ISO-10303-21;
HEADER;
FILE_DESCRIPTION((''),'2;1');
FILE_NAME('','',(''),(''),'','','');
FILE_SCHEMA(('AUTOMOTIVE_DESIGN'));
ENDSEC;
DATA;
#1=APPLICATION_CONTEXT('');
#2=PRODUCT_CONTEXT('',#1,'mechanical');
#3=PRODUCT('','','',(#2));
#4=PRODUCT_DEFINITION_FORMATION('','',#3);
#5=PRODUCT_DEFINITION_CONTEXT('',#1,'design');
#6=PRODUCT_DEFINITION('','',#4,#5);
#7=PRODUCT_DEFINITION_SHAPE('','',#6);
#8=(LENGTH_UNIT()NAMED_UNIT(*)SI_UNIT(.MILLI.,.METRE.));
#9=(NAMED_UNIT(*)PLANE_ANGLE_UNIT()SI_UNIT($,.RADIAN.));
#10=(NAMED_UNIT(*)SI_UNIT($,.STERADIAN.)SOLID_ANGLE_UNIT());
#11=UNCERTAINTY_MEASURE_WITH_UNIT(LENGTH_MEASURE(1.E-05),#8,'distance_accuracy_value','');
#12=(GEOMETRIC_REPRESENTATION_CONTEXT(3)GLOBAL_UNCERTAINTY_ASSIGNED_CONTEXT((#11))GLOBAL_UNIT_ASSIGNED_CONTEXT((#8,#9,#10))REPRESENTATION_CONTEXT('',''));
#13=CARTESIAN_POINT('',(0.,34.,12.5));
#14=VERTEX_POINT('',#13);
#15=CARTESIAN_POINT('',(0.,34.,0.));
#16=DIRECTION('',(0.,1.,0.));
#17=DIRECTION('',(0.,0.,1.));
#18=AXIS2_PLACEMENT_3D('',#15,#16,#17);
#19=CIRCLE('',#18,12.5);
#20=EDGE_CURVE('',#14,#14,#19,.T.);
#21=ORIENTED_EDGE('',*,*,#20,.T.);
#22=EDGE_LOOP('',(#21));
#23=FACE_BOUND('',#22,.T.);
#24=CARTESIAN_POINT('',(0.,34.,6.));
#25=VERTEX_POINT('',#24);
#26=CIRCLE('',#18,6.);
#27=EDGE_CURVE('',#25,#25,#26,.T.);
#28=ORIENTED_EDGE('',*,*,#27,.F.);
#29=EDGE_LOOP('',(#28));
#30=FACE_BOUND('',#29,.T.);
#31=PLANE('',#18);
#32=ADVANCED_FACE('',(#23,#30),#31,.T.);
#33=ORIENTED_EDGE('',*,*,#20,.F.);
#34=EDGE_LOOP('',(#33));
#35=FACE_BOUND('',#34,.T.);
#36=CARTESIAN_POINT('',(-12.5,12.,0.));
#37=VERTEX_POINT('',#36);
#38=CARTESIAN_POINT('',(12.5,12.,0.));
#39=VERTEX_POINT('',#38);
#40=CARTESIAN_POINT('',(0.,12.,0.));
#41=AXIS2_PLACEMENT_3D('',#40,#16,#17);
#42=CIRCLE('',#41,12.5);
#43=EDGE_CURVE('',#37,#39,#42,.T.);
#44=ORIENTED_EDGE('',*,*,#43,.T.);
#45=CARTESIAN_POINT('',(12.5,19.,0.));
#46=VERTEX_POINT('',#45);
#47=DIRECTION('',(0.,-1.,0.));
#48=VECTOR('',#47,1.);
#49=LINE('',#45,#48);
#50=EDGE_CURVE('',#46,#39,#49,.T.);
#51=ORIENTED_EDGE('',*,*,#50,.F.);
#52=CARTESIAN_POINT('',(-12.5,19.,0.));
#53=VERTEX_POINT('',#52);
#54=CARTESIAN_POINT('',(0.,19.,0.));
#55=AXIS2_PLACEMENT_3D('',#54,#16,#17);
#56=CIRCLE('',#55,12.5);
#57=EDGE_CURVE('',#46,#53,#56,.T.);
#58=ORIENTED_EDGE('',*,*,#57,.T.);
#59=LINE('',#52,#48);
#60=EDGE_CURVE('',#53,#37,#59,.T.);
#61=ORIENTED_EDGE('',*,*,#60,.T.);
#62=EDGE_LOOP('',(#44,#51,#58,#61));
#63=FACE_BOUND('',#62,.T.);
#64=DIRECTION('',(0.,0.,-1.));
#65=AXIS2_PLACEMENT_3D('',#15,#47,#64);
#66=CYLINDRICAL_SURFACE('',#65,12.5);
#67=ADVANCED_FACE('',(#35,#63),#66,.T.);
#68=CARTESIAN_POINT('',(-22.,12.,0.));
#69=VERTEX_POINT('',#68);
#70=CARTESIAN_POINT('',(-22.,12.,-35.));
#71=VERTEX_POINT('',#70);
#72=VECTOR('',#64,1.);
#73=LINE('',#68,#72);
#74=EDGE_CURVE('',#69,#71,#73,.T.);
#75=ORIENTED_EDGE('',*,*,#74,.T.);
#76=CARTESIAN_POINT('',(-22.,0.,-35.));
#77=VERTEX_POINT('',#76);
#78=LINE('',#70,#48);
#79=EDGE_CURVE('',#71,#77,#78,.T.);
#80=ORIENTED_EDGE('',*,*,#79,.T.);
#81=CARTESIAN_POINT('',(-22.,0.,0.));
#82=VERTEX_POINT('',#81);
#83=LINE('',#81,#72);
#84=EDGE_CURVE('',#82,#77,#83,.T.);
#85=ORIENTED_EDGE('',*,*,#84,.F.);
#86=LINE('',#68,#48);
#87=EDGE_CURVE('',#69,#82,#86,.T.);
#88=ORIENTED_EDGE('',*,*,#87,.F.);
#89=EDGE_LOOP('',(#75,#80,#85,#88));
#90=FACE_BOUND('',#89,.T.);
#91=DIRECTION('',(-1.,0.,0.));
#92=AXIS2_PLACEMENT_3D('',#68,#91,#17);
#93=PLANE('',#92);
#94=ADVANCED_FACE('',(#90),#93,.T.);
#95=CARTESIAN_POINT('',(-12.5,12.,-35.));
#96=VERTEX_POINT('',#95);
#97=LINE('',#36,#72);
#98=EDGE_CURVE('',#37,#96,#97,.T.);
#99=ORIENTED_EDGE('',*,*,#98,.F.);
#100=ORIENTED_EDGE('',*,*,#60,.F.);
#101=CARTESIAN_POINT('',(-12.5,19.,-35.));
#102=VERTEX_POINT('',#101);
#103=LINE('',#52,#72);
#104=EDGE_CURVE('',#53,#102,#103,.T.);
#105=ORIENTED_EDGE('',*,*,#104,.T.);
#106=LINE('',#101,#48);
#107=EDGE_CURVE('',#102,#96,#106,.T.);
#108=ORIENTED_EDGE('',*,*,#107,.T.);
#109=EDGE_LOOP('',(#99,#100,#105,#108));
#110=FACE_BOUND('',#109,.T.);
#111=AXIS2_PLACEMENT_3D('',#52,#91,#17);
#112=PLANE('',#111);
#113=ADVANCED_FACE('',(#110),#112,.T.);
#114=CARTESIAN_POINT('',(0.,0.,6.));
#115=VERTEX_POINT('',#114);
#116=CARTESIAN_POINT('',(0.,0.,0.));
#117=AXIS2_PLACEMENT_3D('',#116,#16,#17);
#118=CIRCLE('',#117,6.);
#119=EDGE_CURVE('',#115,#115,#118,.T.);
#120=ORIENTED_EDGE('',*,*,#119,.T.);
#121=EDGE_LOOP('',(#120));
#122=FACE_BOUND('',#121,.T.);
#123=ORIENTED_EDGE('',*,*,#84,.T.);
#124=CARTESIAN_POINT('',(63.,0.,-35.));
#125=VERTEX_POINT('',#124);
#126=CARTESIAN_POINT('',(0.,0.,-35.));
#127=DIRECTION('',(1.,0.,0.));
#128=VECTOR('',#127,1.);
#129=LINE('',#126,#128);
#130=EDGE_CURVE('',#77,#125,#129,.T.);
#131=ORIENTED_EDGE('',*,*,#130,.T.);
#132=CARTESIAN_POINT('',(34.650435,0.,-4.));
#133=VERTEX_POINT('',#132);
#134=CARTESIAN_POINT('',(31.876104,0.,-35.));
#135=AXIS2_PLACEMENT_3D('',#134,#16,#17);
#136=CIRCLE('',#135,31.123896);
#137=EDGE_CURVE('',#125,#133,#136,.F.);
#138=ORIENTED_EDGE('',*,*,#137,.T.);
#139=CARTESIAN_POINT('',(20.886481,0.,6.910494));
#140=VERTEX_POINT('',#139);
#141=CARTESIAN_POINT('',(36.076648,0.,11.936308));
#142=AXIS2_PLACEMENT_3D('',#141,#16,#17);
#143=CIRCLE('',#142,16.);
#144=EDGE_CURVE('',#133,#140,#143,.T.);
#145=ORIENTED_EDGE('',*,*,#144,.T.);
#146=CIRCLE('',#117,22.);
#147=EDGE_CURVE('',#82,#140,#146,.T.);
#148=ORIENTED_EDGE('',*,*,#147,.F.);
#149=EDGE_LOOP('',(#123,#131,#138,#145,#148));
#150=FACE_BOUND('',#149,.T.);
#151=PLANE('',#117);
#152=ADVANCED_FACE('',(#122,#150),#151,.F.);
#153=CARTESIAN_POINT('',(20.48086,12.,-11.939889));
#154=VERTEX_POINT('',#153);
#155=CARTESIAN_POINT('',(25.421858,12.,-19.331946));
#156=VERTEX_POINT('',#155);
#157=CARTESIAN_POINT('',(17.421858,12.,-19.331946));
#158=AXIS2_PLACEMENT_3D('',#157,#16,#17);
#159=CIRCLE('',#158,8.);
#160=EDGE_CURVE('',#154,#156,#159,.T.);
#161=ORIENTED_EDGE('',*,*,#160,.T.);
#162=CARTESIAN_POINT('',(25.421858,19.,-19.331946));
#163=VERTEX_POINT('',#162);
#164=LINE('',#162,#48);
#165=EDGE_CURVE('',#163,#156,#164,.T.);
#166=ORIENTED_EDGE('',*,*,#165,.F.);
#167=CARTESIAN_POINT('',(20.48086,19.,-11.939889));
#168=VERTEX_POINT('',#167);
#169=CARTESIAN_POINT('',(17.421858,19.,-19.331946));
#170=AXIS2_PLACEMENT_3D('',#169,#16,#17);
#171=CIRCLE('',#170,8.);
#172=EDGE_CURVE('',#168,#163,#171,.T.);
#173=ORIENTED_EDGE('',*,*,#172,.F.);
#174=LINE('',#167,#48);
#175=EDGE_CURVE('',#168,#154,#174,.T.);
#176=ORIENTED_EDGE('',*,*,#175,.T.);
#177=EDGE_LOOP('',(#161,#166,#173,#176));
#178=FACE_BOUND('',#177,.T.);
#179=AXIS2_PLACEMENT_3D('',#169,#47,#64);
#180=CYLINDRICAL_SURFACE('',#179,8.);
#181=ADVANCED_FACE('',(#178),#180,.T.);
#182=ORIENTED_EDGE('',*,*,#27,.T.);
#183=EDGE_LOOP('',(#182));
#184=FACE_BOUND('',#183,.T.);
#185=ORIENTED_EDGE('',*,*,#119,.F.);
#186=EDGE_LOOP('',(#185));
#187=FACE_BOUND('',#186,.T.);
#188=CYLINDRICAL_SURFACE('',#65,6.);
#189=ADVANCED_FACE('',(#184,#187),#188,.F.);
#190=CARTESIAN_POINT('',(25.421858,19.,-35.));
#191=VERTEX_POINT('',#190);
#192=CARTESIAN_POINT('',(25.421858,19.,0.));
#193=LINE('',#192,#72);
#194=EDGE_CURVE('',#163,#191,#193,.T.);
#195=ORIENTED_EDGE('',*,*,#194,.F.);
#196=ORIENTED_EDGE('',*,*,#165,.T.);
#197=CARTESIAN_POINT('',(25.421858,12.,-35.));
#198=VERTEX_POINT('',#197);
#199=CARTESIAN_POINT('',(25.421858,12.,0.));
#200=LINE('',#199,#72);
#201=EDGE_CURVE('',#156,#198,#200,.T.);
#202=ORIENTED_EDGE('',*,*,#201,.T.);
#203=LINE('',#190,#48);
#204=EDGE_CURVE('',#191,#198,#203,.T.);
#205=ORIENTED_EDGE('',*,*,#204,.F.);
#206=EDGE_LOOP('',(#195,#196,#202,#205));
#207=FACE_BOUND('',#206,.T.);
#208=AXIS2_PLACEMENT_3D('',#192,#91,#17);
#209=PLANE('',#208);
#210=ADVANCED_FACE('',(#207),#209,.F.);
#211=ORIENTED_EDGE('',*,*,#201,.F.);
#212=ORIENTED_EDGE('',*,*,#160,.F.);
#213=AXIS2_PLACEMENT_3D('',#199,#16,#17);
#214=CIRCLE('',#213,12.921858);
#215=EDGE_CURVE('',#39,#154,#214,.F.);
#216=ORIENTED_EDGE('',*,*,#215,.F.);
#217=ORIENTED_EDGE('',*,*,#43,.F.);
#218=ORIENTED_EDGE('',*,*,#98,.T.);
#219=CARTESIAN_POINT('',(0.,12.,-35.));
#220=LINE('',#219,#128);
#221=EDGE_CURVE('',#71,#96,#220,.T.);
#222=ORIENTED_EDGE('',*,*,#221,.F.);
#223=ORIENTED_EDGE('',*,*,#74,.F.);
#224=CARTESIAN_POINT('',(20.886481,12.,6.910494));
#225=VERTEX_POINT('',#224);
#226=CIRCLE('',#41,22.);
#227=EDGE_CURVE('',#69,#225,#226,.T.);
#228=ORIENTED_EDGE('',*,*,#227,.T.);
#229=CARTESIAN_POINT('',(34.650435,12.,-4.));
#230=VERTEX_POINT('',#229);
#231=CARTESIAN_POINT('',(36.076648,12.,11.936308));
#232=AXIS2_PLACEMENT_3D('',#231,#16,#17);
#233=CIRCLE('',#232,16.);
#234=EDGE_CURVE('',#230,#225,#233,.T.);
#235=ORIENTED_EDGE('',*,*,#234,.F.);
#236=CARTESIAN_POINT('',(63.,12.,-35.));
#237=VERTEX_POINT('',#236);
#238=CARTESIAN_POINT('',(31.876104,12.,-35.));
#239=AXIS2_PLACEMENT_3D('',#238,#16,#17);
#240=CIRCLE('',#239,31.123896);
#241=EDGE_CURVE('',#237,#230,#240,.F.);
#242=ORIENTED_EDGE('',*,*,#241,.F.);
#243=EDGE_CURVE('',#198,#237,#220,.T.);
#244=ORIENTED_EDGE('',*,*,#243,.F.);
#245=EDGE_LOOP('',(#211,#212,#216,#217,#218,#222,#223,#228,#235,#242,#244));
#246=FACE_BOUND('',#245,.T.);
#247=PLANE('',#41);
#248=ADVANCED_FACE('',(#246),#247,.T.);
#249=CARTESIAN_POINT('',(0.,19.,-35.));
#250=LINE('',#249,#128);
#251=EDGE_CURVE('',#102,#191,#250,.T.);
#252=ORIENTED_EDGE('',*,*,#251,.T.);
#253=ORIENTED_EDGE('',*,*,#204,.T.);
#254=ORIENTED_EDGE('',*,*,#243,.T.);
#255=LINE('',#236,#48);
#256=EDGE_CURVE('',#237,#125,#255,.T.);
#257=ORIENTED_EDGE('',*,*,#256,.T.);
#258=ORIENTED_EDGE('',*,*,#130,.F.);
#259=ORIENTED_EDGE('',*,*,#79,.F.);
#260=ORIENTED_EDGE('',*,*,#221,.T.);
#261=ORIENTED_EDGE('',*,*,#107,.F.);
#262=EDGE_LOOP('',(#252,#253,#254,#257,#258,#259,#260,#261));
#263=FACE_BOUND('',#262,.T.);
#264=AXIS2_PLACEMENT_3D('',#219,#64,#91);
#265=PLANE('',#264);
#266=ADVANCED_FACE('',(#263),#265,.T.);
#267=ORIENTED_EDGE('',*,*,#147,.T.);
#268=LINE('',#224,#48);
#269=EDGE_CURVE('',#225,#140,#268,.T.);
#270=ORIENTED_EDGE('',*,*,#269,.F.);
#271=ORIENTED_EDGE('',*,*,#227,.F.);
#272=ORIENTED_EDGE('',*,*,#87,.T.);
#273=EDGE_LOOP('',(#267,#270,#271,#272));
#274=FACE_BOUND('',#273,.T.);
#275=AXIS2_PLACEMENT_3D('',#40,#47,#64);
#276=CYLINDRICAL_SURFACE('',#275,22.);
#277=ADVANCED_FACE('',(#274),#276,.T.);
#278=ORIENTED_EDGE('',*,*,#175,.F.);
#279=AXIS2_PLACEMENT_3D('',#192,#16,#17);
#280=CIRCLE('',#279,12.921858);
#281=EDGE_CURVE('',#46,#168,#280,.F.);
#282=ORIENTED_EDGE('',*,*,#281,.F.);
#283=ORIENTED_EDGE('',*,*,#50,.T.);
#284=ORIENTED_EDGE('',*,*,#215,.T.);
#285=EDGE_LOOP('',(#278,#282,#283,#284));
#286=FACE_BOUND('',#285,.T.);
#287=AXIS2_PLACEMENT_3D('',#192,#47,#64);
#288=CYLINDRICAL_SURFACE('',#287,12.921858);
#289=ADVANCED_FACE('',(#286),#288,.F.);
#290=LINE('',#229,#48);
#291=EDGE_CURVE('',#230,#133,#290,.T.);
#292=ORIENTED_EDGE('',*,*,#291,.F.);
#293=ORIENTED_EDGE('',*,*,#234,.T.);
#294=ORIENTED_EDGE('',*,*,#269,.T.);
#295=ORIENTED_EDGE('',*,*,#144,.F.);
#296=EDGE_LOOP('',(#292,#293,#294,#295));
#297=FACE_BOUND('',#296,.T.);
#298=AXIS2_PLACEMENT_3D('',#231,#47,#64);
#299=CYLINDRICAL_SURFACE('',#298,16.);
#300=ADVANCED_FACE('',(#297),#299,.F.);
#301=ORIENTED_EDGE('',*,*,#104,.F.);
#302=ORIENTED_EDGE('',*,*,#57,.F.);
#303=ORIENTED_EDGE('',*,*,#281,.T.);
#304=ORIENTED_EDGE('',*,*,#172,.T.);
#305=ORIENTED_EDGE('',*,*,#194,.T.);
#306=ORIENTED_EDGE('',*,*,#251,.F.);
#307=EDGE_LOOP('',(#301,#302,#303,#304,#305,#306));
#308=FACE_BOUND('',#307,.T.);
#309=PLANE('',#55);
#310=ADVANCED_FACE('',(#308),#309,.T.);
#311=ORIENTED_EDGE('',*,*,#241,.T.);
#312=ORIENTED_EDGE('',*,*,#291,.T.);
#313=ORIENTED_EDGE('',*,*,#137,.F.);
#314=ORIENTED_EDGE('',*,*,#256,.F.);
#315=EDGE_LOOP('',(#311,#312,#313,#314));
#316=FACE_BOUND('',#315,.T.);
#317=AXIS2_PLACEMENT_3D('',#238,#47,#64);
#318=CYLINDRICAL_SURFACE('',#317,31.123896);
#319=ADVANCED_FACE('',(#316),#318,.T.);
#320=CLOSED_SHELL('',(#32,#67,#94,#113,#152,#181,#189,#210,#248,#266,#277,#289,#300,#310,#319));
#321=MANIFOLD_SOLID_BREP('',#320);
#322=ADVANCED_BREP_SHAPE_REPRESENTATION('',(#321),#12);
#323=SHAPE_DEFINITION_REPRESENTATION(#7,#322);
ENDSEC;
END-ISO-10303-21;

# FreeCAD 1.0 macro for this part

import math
import FreeCAD as App
import Part
import Sketcher
from FreeCAD import Vector

doc = App.newDocument("Part")
body = doc.addObject("PartDesign::Body", "Body")

# Sketch on XZ plane
sketch1 = body.newObject("Sketcher::SketchObject", "Sketch")
sketch1.AttachmentSupport = (doc.getObject("XZ_Plane"), [""])
sketch1.MapMode = "FlatFace"
sketch1.addGeometry([
    Part.LineSegment(Vector(-22, -35, 0), Vector(-22, 0, 0)),  # 0
    Part.ArcOfCircle(Part.Circle(Vector(0, 0, 0), Vector(0, 0, 1), 22), math.radians(18), math.radians(180)),  # 1
    Part.ArcOfCircle(Part.Circle(Vector(36, 12, 0), Vector(0, 0, 1), 16), math.radians(-162), math.radians(-95)),  # 2
    Part.ArcOfCircle(Part.Circle(Vector(32, -35, 0), Vector(0, 0, 1), 31), math.radians(0), math.radians(85)),  # 3
    Part.LineSegment(Vector(63, -35, 0), Vector(25, -35, 0)),  # 4
    Part.LineSegment(Vector(25, -35, 0), Vector(25, -19, 0)),  # 5
    Part.ArcOfCircle(Part.Circle(Vector(17, -19, 0), Vector(0, 0, 1), 8), math.radians(0), math.radians(68)),  # 6
    Part.ArcOfCircle(Part.Circle(Vector(25, 0, 0), Vector(0, 0, 1), 13), math.radians(180), math.radians(248)),  # 7
    Part.ArcOfCircle(Part.Circle(Vector(0, 0, 0), Vector(0, 0, 1), 12), math.radians(0), math.radians(180)),  # 8
    Part.LineSegment(Vector(-12, 0, 0), Vector(-12, -35, 0)),  # 9
    Part.LineSegment(Vector(-12, -35, 0), Vector(-22, -35, 0)),  # 10
], False)
sketch1.addConstraint([
    Sketcher.Constraint("Tangent", 0, 2, 1, 2),
    Sketcher.Constraint("Tangent", 1, 1, 2, 1),
    Sketcher.Constraint("Tangent", 2, 2, 3, 2),
    Sketcher.Constraint("Coincident", 3, 1, 4, 1),
    Sketcher.Constraint("Coincident", 4, 2, 5, 1),
    Sketcher.Constraint("Tangent", 5, 2, 6, 1),
    Sketcher.Constraint("Tangent", 6, 2, 7, 2),
    Sketcher.Constraint("Tangent", 7, 1, 8, 1),
    Sketcher.Constraint("Tangent", 8, 2, 9, 1),
    Sketcher.Constraint("Coincident", 9, 2, 10, 1),
    Sketcher.Constraint("Coincident", 10, 2, 0, 1),
    Sketcher.Constraint("Vertical", 0),
    Sketcher.Constraint("Horizontal", 4),
    Sketcher.Constraint("Vertical", 5),
    Sketcher.Constraint("Vertical", 9),
    Sketcher.Constraint("Horizontal", 10),
    Sketcher.Constraint("Coincident", 1, 3, -1, 1),
    Sketcher.Constraint("Coincident", 8, 3, -1, 1),
    Sketcher.Constraint("PointOnObject", 7, 3, -1),
    Sketcher.Constraint("Horizontal", 4, 2, 9, 2),
    Sketcher.Constraint("Vertical", 7, 3, 4, 2),
    Sketcher.Constraint("Radius", 1, 22.0),
    Sketcher.Constraint("Radius", 2, 16.0),
    Sketcher.Constraint("Radius", 6, 8.0),
    Sketcher.Constraint("Radius", 8, 12.5),
    Sketcher.Constraint("DistanceY", 0, 1, 0, 2, 35.0),
    Sketcher.Constraint("DistanceY", 3, 3, -1, 1, 35.0),
    Sketcher.Constraint("DistanceY", 2, 2, -1, 1, 4.0),
    Sketcher.Constraint("DistanceX", -1, 1, 3, 1, 63.0),
    Sketcher.Constraint("Radius", 7, 12.921858),
])
pad1 = body.newObject("PartDesign::Pad", "Pad")
pad1.Profile = sketch1
pad1.Length = 12
pad1.Reversed = True

# Sketch on XZ plane
sketch2 = body.newObject("Sketcher::SketchObject", "Sketch001")
sketch2.AttachmentSupport = (doc.getObject("XZ_Plane"), [""])
sketch2.MapMode = "FlatFace"
sketch2.addGeometry([
    Part.LineSegment(Vector(25, -35, 0), Vector(-12, -35, 0)),  # 0
    Part.LineSegment(Vector(-12, -35, 0), Vector(-12, 0, 0)),  # 1
    Part.ArcOfCircle(Part.Circle(Vector(0, 0, 0), Vector(0, 0, 1), 12), math.radians(180), math.radians(360)),  # 2
    Part.ArcOfCircle(Part.Circle(Vector(25, 0, 0), Vector(0, 0, 1), 13), math.radians(180), math.radians(248)),  # 3
    Part.ArcOfCircle(Part.Circle(Vector(17, -19, 0), Vector(0, 0, 1), 8), math.radians(0), math.radians(68)),  # 4
    Part.LineSegment(Vector(25, -19, 0), Vector(25, -35, 0)),  # 5
], False)
sketch2.addConstraint([
    Sketcher.Constraint("Coincident", 0, 2, 1, 1),
    Sketcher.Constraint("Tangent", 1, 2, 2, 1),
    Sketcher.Constraint("Tangent", 2, 2, 3, 1),
    Sketcher.Constraint("Tangent", 3, 2, 4, 2),
    Sketcher.Constraint("Tangent", 4, 1, 5, 1),
    Sketcher.Constraint("Coincident", 5, 2, 0, 1),
    Sketcher.Constraint("Horizontal", 0),
    Sketcher.Constraint("Vertical", 1),
    Sketcher.Constraint("Vertical", 5),
    Sketcher.Constraint("Coincident", 2, 3, -1, 1),
    Sketcher.Constraint("PointOnObject", 3, 3, -1),
    Sketcher.Constraint("Vertical", 3, 3, 4, 1),
    Sketcher.Constraint("Radius", 4, 8.0),
    Sketcher.Constraint("Radius", 2, 12.5),
    Sketcher.Constraint("DistanceY", 1, 1, 1, 2, 35.0),
    Sketcher.Constraint("Radius", 3, 12.921858),
])
pad2 = body.newObject("PartDesign::Pad", "Pad001")
pad2.Profile = sketch2
pad2.Length = 19
pad2.Reversed = True

# Sketch on XZ plane
sketch3 = body.newObject("Sketcher::SketchObject", "Sketch002")
sketch3.AttachmentSupport = (doc.getObject("XZ_Plane"), [""])
sketch3.MapMode = "FlatFace"
sketch3.addGeometry([
    Part.Circle(Vector(0, 0, 0), Vector(0, 0, 1), 12),
    Part.Circle(Vector(0, 0, 0), Vector(0, 0, 1), 6),
], False)
sketch3.addConstraint([
    Sketcher.Constraint("Coincident", 0, 3, -1, 1),
    Sketcher.Constraint("Coincident", 1, 3, -1, 1),
    Sketcher.Constraint("Diameter", 0, 25.0),
    Sketcher.Constraint("Diameter", 1, 12.0),
])
pad3 = body.newObject("PartDesign::Pad", "Pad002")
pad3.Profile = sketch3
pad3.Length = 34
pad3.Reversed = True

doc.recompute()
